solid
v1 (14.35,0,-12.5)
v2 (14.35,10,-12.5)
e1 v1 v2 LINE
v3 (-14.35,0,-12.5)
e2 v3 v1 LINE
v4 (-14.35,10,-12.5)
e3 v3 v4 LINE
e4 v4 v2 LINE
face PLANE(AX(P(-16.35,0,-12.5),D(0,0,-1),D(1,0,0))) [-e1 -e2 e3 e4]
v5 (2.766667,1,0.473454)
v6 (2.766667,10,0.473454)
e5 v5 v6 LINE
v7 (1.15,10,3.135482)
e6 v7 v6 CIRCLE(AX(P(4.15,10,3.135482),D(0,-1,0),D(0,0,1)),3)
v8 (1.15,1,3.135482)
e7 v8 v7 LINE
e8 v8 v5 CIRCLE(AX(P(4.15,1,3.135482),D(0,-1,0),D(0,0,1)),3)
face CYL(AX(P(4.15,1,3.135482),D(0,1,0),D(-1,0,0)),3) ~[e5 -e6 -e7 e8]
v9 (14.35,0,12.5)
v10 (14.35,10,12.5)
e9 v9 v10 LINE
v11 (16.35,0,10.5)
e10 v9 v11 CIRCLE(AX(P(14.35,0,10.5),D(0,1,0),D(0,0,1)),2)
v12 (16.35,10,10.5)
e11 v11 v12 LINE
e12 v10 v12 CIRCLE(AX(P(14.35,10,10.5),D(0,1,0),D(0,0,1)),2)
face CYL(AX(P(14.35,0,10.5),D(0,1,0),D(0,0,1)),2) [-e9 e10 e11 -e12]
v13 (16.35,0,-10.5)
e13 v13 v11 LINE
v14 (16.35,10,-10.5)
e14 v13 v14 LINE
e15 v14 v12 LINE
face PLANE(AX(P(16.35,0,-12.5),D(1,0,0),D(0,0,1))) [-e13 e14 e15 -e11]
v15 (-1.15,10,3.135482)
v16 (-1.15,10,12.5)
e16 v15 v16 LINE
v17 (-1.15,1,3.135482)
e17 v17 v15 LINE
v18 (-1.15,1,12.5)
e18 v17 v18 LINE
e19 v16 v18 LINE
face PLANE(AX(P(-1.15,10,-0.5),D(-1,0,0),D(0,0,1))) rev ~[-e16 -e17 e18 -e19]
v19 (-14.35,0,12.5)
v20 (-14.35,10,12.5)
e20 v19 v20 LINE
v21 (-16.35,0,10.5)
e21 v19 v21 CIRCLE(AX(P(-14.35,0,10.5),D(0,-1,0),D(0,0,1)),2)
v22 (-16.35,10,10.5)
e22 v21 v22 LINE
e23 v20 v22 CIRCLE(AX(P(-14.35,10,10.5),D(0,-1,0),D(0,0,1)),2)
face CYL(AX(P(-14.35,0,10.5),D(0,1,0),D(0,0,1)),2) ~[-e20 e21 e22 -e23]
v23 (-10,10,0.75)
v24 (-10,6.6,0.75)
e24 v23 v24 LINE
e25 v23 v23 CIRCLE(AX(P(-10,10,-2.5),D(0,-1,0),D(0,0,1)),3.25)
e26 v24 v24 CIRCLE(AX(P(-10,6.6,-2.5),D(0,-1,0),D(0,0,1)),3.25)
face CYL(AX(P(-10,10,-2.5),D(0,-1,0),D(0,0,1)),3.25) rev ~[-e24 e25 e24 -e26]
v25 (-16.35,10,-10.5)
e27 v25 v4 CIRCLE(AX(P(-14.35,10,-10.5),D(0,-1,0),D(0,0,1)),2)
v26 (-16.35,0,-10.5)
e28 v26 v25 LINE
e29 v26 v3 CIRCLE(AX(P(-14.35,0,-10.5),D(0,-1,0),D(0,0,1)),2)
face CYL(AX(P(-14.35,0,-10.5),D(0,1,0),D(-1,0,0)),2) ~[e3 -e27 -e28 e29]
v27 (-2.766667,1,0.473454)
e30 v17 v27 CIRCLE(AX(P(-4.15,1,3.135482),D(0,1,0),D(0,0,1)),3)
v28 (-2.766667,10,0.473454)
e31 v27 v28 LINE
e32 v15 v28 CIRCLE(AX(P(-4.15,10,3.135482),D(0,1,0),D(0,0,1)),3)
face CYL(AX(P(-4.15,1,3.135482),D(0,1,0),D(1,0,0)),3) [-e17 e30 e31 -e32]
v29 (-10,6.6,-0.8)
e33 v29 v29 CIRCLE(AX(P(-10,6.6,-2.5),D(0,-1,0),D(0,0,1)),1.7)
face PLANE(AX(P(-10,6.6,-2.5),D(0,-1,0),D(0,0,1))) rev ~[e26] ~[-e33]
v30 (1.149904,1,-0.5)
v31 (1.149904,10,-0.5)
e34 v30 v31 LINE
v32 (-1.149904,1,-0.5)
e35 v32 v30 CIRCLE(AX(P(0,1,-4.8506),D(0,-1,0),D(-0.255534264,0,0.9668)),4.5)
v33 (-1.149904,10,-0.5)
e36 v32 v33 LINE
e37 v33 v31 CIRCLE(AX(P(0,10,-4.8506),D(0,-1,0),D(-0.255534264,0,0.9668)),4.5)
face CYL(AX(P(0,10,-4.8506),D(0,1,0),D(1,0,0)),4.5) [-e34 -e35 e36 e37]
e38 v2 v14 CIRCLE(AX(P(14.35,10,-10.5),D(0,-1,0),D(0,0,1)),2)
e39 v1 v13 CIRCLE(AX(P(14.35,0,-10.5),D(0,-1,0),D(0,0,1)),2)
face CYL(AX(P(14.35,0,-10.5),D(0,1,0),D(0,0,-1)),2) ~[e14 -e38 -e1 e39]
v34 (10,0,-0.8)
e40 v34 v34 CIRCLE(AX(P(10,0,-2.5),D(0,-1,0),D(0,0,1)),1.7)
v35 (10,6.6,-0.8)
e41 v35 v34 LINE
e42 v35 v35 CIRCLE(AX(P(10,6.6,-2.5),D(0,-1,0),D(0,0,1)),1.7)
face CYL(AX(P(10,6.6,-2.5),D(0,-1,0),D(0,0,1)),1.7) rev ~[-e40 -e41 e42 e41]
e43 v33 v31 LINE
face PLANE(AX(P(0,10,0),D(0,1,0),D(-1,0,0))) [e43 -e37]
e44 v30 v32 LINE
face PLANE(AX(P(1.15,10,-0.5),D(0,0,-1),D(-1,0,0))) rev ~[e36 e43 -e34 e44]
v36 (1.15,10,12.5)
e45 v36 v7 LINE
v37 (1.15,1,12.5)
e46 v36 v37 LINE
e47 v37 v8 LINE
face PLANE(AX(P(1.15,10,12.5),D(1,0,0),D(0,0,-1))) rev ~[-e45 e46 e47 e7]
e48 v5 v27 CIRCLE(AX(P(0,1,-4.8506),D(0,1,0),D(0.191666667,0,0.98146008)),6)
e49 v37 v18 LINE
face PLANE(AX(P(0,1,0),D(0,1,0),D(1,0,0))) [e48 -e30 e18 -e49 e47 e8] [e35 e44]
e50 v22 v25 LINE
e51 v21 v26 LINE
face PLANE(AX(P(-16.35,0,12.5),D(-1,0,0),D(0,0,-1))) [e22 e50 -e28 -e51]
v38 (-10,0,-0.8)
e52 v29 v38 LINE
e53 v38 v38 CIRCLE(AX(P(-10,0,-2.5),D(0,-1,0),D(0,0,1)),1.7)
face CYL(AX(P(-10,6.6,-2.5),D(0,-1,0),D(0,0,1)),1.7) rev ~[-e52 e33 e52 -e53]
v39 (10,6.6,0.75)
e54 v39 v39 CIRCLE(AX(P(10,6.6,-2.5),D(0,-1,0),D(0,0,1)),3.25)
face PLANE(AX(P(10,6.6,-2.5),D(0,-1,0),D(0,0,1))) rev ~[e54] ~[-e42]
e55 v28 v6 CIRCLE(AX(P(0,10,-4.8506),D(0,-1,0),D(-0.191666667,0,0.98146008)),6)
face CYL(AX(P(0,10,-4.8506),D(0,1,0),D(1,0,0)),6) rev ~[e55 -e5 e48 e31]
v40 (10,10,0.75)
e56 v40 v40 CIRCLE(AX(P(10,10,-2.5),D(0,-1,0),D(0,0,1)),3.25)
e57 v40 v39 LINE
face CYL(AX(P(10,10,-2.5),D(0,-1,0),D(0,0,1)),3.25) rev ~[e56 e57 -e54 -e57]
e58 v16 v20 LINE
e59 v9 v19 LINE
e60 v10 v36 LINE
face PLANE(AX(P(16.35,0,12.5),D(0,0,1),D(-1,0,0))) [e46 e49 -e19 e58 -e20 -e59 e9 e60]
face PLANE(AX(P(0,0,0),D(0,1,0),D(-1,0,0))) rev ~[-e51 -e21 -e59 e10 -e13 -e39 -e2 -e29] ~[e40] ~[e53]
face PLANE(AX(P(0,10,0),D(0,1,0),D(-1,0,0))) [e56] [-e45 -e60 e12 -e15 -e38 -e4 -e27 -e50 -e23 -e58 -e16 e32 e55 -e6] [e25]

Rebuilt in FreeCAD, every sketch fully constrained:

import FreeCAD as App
import Part
import Sketcher

V = App.Vector


def edges_at(feature, points):
    """Names of the edges that pass closest to the given points."""
    edges = feature.Shape.Edges
    near = lambda p: min(range(len(edges)), key=lambda i: edges[i].distToShape(Part.Vertex(*p))[0])
    return sorted({f"Edge{near(p) + 1}" for p in points})


def add_polygon(sketch, points):
    """Adds a closed chain of lines whose ends are joined by coincident constraints."""
    first, n = sketch.GeometryCount, len(points)
    for a, b in zip(points, points[1:] + points[:1]):
        sketch.addGeometry(Part.LineSegment(App.Vector(*a, 0), App.Vector(*b, 0)), False)
    for i in range(n):
        sketch.addConstraint(Sketcher.Constraint("Coincident", first + i, 2, first + (i + 1) % n, 1))

doc = App.newDocument("Part")
body = doc.addObject("PartDesign::Body", "Body")

# Sketch on XZ plane
sketch1 = body.newObject("Sketcher::SketchObject", "Sketch")
sketch1.AttachmentSupport = (doc.getObject("XZ_Plane"), [""])
sketch1.MapMode = "FlatFace"
add_polygon(sketch1, [(-16, 12), (16, 12), (16, -12), (-16, -12)])  # lines 0-3
sketch1.addConstraint(Sketcher.Constraint("Horizontal", 0))
sketch1.addConstraint(Sketcher.Constraint("Vertical", 1))
sketch1.addConstraint(Sketcher.Constraint("Horizontal", 2))
sketch1.addConstraint(Sketcher.Constraint("Vertical", 3))
sketch1.addConstraint(Sketcher.Constraint("Symmetric", 0, 2, 2, 2, -1, 1))
sketch1.addConstraint(Sketcher.Constraint("DistanceY", 1, 2, 1, 1, 25.0))
sketch1.addConstraint(Sketcher.Constraint("DistanceX", 0, 1, 0, 2, 32.7))
pad1 = body.newObject("PartDesign::Pad", "Pad")
pad1.Profile = sketch1
pad1.Length = 10
pad1.Reversed = True

# Sketch on XZ plane
sketch2 = body.newObject("Sketcher::SketchObject", "Sketch001")
sketch2.AttachmentSupport = (doc.getObject("XZ_Plane"), [""])
sketch2.MapMode = "FlatFace"
sketch2.AttachmentOffset = App.Placement(V(0, 0, -10), App.Rotation())
add_polygon(sketch2, [(1.1, -0.5), (-1.1, -0.5), (-1.1, 12.5), (1.1, 12.5)])  # lines 0-3
sketch2.addConstraint(Sketcher.Constraint("Horizontal", 0))
sketch2.addConstraint(Sketcher.Constraint("Vertical", 1))
sketch2.addConstraint(Sketcher.Constraint("Horizontal", 2))
sketch2.addConstraint(Sketcher.Constraint("Vertical", 3))
sketch2.addConstraint(Sketcher.Constraint("DistanceY", 1, 1, 1, 2, 13.0))
sketch2.addConstraint(Sketcher.Constraint("DistanceX", 0, 2, 0, 1, 2.3))
sketch2.addConstraint(Sketcher.Constraint("DistanceY", 0, 2, -1, 1, 0.5))
sketch2.addConstraint(Sketcher.Constraint("DistanceX", 0, 2, -1, 1, 1.15))
pocket1 = body.newObject("PartDesign::Pocket", "Pocket")
pocket1.Profile = sketch2
pocket1.Length = 9
pocket1.Reversed = True

# Sketch on XZ plane
sketch3 = body.newObject("Sketcher::SketchObject", "Sketch002")
sketch3.AttachmentSupport = (doc.getObject("XZ_Plane"), [""])
sketch3.MapMode = "FlatFace"
sketch3.AttachmentOffset = App.Placement(V(0, 0, -10), App.Rotation())
sketch3.addGeometry(Part.Circle(V(0, -4.9, 0), V(0, 0, 1), 6), False)
sketch3.addGeometry(Part.Circle(V(0, -4.9, 0), V(0, 0, 1), 4.5), False)
sketch3.addConstraint(Sketcher.Constraint("Coincident", 1, 3, 0, 3))
sketch3.addConstraint(Sketcher.Constraint("PointOnObject", 0, 3, -2))
sketch3.addConstraint(Sketcher.Constraint("Diameter", 1, 9.0))
sketch3.addConstraint(Sketcher.Constraint("Diameter", 0, 12.0))
sketch3.addConstraint(Sketcher.Constraint("DistanceY", 0, 3, -1, 1, 4.8506))
pocket2 = body.newObject("PartDesign::Pocket", "Pocket001")
pocket2.Profile = sketch3
pocket2.Length = 9
pocket2.Reversed = True
doc.recompute()

fillet = body.newObject("PartDesign::Fillet", "Fillet")
fillet.Base = (pocket2, edges_at(pocket2, [(-1.15, 5.5, 1.038), (1.15, 5.5, 1.038)]))
fillet.Radius = 3

# Sketch on XZ plane
sketch4 = body.newObject("Sketcher::SketchObject", "Sketch003")
sketch4.AttachmentSupport = (doc.getObject("XZ_Plane"), [""])
sketch4.MapMode = "FlatFace"
sketch4.AttachmentOffset = App.Placement(V(0, 0, -10), App.Rotation())
sketch4.addGeometry(Part.Circle(V(-10, -2.5, 0), V(0, 0, 1), 1.7), False)
sketch4.addGeometry(Part.Circle(V(10, -2.5, 0), V(0, 0, 1), 1.7), False)
sketch4.addConstraint(Sketcher.Constraint("Equal", 0, 1))
sketch4.addConstraint(Sketcher.Constraint("Symmetric", 0, 3, 1, 3, -2))
sketch4.addConstraint(Sketcher.Constraint("Diameter", 0, 3.4))
sketch4.addConstraint(Sketcher.Constraint("DistanceX", 0, 3, -1, 1, 10.0))
sketch4.addConstraint(Sketcher.Constraint("DistanceY", 0, 3, -1, 1, 2.5))
doc.recompute()
hole = body.newObject("PartDesign::Hole", "Hole")
hole.Profile = sketch4
hole.ThreadType = "None"
hole.Diameter = 3.4
hole.DepthType = "ThroughAll"
hole.HoleCutType = "Counterbore"
hole.HoleCutDiameter = 6.5
hole.HoleCutDepth = 3.4
hole.Reversed = True
doc.recompute()

fillet2 = body.newObject("PartDesign::Fillet", "Fillet001")
fillet2.Base = (hole, edges_at(hole, [
    (16.35, 5, 12.5),
    (16.35, 5, -12.5),
    (-16.35, 5, -12.5),
    (-16.35, 5, 12.5),
]))
fillet2.Radius = 2

doc.recompute()
